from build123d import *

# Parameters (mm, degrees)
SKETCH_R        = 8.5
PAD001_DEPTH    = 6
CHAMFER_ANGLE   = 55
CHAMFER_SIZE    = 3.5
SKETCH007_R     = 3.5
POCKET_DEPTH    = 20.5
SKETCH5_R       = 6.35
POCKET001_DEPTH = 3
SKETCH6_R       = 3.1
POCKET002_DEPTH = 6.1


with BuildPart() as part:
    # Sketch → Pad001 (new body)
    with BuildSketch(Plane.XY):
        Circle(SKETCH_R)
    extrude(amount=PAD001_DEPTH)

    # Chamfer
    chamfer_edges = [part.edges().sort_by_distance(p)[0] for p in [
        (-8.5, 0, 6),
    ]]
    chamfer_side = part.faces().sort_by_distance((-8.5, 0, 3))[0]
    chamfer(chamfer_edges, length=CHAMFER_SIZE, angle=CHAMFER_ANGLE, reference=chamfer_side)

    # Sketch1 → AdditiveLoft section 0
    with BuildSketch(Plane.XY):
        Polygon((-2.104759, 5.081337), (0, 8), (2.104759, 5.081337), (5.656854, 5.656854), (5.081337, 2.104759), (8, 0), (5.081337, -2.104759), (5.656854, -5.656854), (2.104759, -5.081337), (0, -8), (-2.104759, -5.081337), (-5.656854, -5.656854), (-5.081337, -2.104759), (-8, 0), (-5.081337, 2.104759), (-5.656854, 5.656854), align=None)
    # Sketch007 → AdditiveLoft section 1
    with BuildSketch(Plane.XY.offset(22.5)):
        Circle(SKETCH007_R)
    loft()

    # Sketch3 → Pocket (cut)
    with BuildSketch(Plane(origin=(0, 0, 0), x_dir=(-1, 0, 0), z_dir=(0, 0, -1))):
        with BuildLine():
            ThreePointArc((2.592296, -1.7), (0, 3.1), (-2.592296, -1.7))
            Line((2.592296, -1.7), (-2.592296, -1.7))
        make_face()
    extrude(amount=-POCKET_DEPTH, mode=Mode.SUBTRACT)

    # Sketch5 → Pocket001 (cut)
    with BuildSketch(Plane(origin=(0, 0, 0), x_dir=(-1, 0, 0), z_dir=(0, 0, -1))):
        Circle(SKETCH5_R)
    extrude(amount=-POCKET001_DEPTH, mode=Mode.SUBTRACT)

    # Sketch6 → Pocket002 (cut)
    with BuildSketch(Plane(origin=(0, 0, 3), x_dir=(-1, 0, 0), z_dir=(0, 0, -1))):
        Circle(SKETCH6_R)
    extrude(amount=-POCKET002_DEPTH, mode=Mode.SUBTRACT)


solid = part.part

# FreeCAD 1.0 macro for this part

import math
import FreeCAD as App
import Part
import Sketcher
Q = App.Units.Quantity


def edges_at(feature, points):
    """Names of the edges that pass closest to the given points."""
    edges = feature.Shape.Edges
    near = lambda p: min(range(len(edges)), key=lambda i: edges[i].distToShape(Part.Vertex(*p))[0])
    return sorted({f"Edge{near(p) + 1}" for p in points})

doc = App.newDocument("Part")
body = doc.addObject("PartDesign::Body", "Body")

# Sketch on XY plane
sketch1 = doc.addObject("Sketcher::SketchObject", "Sketch")
body.addObject(sketch1)
sketch1.AttachmentSupport = (doc.XY_Plane, [""])
sketch1.MapMode = "FlatFace"
sketch1.addGeometry(Part.Circle(App.Vector(0, 0, 0), App.Vector(0, 0, 1), 8), False)
sketch1.addConstraint(Sketcher.Constraint("Coincident", 0, 3, -1, 1))
sketch1.addConstraint(Sketcher.Constraint("Diameter", 0, Q("17 mm")))
pad1 = doc.addObject("PartDesign::Pad", "Pad")
body.addObject(pad1)
pad1.Profile = sketch1
pad1.Length = 6
doc.recompute()

chamfer = doc.addObject("PartDesign::Chamfer", "Chamfer")
body.addObject(chamfer)
chamfer.Base = (pad1, edges_at(pad1, [(-8.5, 0, 6)]))
chamfer.ChamferType = "Distance and Angle"
chamfer.Size = 3.5
chamfer.Angle = 55

# Sketch on XY plane
sketch2 = doc.addObject("Sketcher::SketchObject", "Sketch001")
body.addObject(sketch2)
sketch2.AttachmentSupport = (doc.XY_Plane, [""])
sketch2.MapMode = "FlatFace"
sketch2.addGeometry(Part.LineSegment(App.Vector(0, 8, 0), App.Vector(-2.1, 5.1, 0)), False)
sketch2.addGeometry(Part.LineSegment(App.Vector(-2.1, 5.1, 0), App.Vector(-5.7, 5.7, 0)), False)
sketch2.addGeometry(Part.LineSegment(App.Vector(-5.7, 5.7, 0), App.Vector(-5.1, 2.1, 0)), False)
sketch2.addGeometry(Part.LineSegment(App.Vector(-5.1, 2.1, 0), App.Vector(-8, 0, 0)), False)
sketch2.addGeometry(Part.LineSegment(App.Vector(-8, 0, 0), App.Vector(-5.1, -2.1, 0)), False)
sketch2.addGeometry(Part.LineSegment(App.Vector(-5.1, -2.1, 0), App.Vector(-5.7, -5.7, 0)), False)
sketch2.addGeometry(Part.LineSegment(App.Vector(-5.7, -5.7, 0), App.Vector(-2.1, -5.1, 0)), False)
sketch2.addGeometry(Part.LineSegment(App.Vector(-2.1, -5.1, 0), App.Vector(0, -8, 0)), False)
sketch2.addGeometry(Part.LineSegment(App.Vector(0, -8, 0), App.Vector(2.1, -5.1, 0)), False)
sketch2.addGeometry(Part.LineSegment(App.Vector(2.1, -5.1, 0), App.Vector(5.7, -5.7, 0)), False)
sketch2.addGeometry(Part.LineSegment(App.Vector(5.7, -5.7, 0), App.Vector(5.1, -2.1, 0)), False)
sketch2.addGeometry(Part.LineSegment(App.Vector(5.1, -2.1, 0), App.Vector(8, 0, 0)), False)
sketch2.addGeometry(Part.LineSegment(App.Vector(8, 0, 0), App.Vector(5.1, 2.1, 0)), False)
sketch2.addGeometry(Part.LineSegment(App.Vector(5.1, 2.1, 0), App.Vector(5.7, 5.7, 0)), False)
sketch2.addGeometry(Part.LineSegment(App.Vector(5.7, 5.7, 0), App.Vector(2.1, 5.1, 0)), False)
sketch2.addGeometry(Part.LineSegment(App.Vector(2.1, 5.1, 0), App.Vector(0, 8, 0)), False)
sketch2.addConstraint(Sketcher.Constraint("Coincident", 0, 2, 1, 1))
sketch2.addConstraint(Sketcher.Constraint("Coincident", 1, 2, 2, 1))
sketch2.addConstraint(Sketcher.Constraint("Coincident", 2, 2, 3, 1))
sketch2.addConstraint(Sketcher.Constraint("Coincident", 3, 2, 4, 1))
sketch2.addConstraint(Sketcher.Constraint("Coincident", 4, 2, 5, 1))
sketch2.addConstraint(Sketcher.Constraint("Coincident", 5, 2, 6, 1))
sketch2.addConstraint(Sketcher.Constraint("Coincident", 6, 2, 7, 1))
sketch2.addConstraint(Sketcher.Constraint("Coincident", 7, 2, 8, 1))
sketch2.addConstraint(Sketcher.Constraint("Coincident", 8, 2, 9, 1))
sketch2.addConstraint(Sketcher.Constraint("Coincident", 9, 2, 10, 1))
sketch2.addConstraint(Sketcher.Constraint("Coincident", 10, 2, 11, 1))
sketch2.addConstraint(Sketcher.Constraint("Coincident", 11, 2, 12, 1))
sketch2.addConstraint(Sketcher.Constraint("Coincident", 12, 2, 13, 1))
sketch2.addConstraint(Sketcher.Constraint("Coincident", 13, 2, 14, 1))
sketch2.addConstraint(Sketcher.Constraint("Coincident", 14, 2, 15, 1))
sketch2.addConstraint(Sketcher.Constraint("Coincident", 15, 2, 0, 1))
sketch2.addConstraint(Sketcher.Constraint("Symmetric", 0, 2, 8, 2, -1, 1))
sketch2.addConstraint(Sketcher.Constraint("Symmetric", 1, 2, 9, 2, -1, 1))
sketch2.addConstraint(Sketcher.Constraint("Symmetric", 2, 2, 10, 2, -1, 1))
sketch2.addConstraint(Sketcher.Constraint("Symmetric", 3, 2, 11, 2, -1, 1))
sketch2.addConstraint(Sketcher.Constraint("Symmetric", 4, 2, 12, 2, -1, 1))
sketch2.addConstraint(Sketcher.Constraint("Symmetric", 5, 2, 13, 2, -1, 1))
sketch2.addConstraint(Sketcher.Constraint("Symmetric", 6, 2, 14, 2, -1, 1))
sketch2.addConstraint(Sketcher.Constraint("Symmetric", 7, 2, 15, 2, -1, 1))
sketch2.addConstraint(Sketcher.Constraint("Symmetric", 6, 2, 8, 2, -2))
sketch2.addConstraint(Sketcher.Constraint("Symmetric", 5, 2, 9, 2, -2))
sketch2.addConstraint(Sketcher.Constraint("Symmetric", 4, 2, 10, 2, -2))
sketch2.addConstraint(Sketcher.Constraint("PointOnObject", 3, 2, -1))
sketch2.addConstraint(Sketcher.Constraint("PointOnObject", 7, 2, -2))
sketch2.addConstraint(Sketcher.Constraint("Perpendicular", 0, 4))
sketch2.addConstraint(Sketcher.Constraint("Perpendicular", 1, 5))
sketch2.addConstraint(Sketcher.Constraint("Equal", 0, 1))
sketch2.addConstraint(Sketcher.Constraint("Equal", 1, 2))
sketch2.addConstraint(Sketcher.Constraint("Equal", 2, 3))
sketch2.addConstraint(Sketcher.Constraint("DistanceX", 3, 2, -1, 1, Q("8 mm")))
sketch2.addConstraint(Sketcher.Constraint("DistanceX", 0, 2, -1, 1, Q("2.104759 mm")))
sketch2.addConstraint(Sketcher.Constraint("DistanceX", 2, 2, 0, 2, Q("2.976578 mm")))

# Sketch on XY plane
sketch3 = doc.addObject("Sketcher::SketchObject", "Sketch002")
body.addObject(sketch3)
sketch3.AttachmentSupport = (doc.XY_Plane, [""])
sketch3.MapMode = "FlatFace"
sketch3.AttachmentOffset = App.Placement(App.Vector(0, 0, 22.5), App.Rotation())
sketch3.addGeometry(Part.Circle(App.Vector(0, 0, 0), App.Vector(0, 0, 1), 3.5), False)
sketch3.addConstraint(Sketcher.Constraint("Coincident", 0, 3, -1, 1))
sketch3.addConstraint(Sketcher.Constraint("Diameter", 0, Q("7 mm")))

additiveloft = doc.addObject("PartDesign::AdditiveLoft", "AdditiveLoft")
body.addObject(additiveloft)
additiveloft.Profile = sketch2
additiveloft.Sections = [sketch3]

# Sketch on XY plane
sketch4 = doc.addObject("Sketcher::SketchObject", "Sketch003")
body.addObject(sketch4)
sketch4.AttachmentSupport = (doc.XY_Plane, [""])
sketch4.MapMode = "FlatFace"
sketch4.addGeometry(Part.ArcOfCircle(Part.Circle(App.Vector(0, 0, 0), App.Vector(0, 0, 1), 3.1), math.radians(-33), math.radians(213)), False)
sketch4.addGeometry(Part.LineSegment(App.Vector(2.6, -1.7, 0), App.Vector(-2.6, -1.7, 0)), False)
sketch4.addConstraint(Sketcher.Constraint("Coincident", 0, 1, 1, 1))
sketch4.addConstraint(Sketcher.Constraint("Coincident", 1, 2, 0, 2))
sketch4.addConstraint(Sketcher.Constraint("Horizontal", 1))
sketch4.addConstraint(Sketcher.Constraint("Coincident", 0, 3, -1, 1))
sketch4.addConstraint(Sketcher.Constraint("Radius", 0, Q("3.1 mm")))
sketch4.addConstraint(Sketcher.Constraint("DistanceY", 0, 1, -1, 1, Q("1.7 mm")))
pocket1 = doc.addObject("PartDesign::Pocket", "Pocket")
body.addObject(pocket1)
pocket1.Profile = sketch4
pocket1.Length = 20.5
pocket1.Reversed = True

# Sketch on XY plane
sketch5 = doc.addObject("Sketcher::SketchObject", "Sketch004")
body.addObject(sketch5)
sketch5.AttachmentSupport = (doc.XY_Plane, [""])
sketch5.MapMode = "FlatFace"
sketch5.addGeometry(Part.Circle(App.Vector(0, 0, 0), App.Vector(0, 0, 1), 6), False)
sketch5.addConstraint(Sketcher.Constraint("Coincident", 0, 3, -1, 1))
sketch5.addConstraint(Sketcher.Constraint("Diameter", 0, Q("12.7 mm")))
pocket2 = doc.addObject("PartDesign::Pocket", "Pocket001")
body.addObject(pocket2)
pocket2.Profile = sketch5
pocket2.Length = 3
pocket2.Reversed = True

# Sketch on XY plane
sketch6 = doc.addObject("Sketcher::SketchObject", "Sketch005")
body.addObject(sketch6)
sketch6.AttachmentSupport = (doc.XY_Plane, [""])
sketch6.MapMode = "FlatFace"
sketch6.AttachmentOffset = App.Placement(App.Vector(0, 0, 3), App.Rotation())
sketch6.addGeometry(Part.Circle(App.Vector(0, 0, 0), App.Vector(0, 0, 1), 3.1), False)
sketch6.addConstraint(Sketcher.Constraint("Coincident", 0, 3, -1, 1))
sketch6.addConstraint(Sketcher.Constraint("Diameter", 0, Q("6.2 mm")))
pocket3 = doc.addObject("PartDesign::Pocket", "Pocket002")
body.addObject(pocket3)
pocket3.Profile = sketch6
pocket3.Length = 6.1
pocket3.Reversed = True

doc.recompute()
